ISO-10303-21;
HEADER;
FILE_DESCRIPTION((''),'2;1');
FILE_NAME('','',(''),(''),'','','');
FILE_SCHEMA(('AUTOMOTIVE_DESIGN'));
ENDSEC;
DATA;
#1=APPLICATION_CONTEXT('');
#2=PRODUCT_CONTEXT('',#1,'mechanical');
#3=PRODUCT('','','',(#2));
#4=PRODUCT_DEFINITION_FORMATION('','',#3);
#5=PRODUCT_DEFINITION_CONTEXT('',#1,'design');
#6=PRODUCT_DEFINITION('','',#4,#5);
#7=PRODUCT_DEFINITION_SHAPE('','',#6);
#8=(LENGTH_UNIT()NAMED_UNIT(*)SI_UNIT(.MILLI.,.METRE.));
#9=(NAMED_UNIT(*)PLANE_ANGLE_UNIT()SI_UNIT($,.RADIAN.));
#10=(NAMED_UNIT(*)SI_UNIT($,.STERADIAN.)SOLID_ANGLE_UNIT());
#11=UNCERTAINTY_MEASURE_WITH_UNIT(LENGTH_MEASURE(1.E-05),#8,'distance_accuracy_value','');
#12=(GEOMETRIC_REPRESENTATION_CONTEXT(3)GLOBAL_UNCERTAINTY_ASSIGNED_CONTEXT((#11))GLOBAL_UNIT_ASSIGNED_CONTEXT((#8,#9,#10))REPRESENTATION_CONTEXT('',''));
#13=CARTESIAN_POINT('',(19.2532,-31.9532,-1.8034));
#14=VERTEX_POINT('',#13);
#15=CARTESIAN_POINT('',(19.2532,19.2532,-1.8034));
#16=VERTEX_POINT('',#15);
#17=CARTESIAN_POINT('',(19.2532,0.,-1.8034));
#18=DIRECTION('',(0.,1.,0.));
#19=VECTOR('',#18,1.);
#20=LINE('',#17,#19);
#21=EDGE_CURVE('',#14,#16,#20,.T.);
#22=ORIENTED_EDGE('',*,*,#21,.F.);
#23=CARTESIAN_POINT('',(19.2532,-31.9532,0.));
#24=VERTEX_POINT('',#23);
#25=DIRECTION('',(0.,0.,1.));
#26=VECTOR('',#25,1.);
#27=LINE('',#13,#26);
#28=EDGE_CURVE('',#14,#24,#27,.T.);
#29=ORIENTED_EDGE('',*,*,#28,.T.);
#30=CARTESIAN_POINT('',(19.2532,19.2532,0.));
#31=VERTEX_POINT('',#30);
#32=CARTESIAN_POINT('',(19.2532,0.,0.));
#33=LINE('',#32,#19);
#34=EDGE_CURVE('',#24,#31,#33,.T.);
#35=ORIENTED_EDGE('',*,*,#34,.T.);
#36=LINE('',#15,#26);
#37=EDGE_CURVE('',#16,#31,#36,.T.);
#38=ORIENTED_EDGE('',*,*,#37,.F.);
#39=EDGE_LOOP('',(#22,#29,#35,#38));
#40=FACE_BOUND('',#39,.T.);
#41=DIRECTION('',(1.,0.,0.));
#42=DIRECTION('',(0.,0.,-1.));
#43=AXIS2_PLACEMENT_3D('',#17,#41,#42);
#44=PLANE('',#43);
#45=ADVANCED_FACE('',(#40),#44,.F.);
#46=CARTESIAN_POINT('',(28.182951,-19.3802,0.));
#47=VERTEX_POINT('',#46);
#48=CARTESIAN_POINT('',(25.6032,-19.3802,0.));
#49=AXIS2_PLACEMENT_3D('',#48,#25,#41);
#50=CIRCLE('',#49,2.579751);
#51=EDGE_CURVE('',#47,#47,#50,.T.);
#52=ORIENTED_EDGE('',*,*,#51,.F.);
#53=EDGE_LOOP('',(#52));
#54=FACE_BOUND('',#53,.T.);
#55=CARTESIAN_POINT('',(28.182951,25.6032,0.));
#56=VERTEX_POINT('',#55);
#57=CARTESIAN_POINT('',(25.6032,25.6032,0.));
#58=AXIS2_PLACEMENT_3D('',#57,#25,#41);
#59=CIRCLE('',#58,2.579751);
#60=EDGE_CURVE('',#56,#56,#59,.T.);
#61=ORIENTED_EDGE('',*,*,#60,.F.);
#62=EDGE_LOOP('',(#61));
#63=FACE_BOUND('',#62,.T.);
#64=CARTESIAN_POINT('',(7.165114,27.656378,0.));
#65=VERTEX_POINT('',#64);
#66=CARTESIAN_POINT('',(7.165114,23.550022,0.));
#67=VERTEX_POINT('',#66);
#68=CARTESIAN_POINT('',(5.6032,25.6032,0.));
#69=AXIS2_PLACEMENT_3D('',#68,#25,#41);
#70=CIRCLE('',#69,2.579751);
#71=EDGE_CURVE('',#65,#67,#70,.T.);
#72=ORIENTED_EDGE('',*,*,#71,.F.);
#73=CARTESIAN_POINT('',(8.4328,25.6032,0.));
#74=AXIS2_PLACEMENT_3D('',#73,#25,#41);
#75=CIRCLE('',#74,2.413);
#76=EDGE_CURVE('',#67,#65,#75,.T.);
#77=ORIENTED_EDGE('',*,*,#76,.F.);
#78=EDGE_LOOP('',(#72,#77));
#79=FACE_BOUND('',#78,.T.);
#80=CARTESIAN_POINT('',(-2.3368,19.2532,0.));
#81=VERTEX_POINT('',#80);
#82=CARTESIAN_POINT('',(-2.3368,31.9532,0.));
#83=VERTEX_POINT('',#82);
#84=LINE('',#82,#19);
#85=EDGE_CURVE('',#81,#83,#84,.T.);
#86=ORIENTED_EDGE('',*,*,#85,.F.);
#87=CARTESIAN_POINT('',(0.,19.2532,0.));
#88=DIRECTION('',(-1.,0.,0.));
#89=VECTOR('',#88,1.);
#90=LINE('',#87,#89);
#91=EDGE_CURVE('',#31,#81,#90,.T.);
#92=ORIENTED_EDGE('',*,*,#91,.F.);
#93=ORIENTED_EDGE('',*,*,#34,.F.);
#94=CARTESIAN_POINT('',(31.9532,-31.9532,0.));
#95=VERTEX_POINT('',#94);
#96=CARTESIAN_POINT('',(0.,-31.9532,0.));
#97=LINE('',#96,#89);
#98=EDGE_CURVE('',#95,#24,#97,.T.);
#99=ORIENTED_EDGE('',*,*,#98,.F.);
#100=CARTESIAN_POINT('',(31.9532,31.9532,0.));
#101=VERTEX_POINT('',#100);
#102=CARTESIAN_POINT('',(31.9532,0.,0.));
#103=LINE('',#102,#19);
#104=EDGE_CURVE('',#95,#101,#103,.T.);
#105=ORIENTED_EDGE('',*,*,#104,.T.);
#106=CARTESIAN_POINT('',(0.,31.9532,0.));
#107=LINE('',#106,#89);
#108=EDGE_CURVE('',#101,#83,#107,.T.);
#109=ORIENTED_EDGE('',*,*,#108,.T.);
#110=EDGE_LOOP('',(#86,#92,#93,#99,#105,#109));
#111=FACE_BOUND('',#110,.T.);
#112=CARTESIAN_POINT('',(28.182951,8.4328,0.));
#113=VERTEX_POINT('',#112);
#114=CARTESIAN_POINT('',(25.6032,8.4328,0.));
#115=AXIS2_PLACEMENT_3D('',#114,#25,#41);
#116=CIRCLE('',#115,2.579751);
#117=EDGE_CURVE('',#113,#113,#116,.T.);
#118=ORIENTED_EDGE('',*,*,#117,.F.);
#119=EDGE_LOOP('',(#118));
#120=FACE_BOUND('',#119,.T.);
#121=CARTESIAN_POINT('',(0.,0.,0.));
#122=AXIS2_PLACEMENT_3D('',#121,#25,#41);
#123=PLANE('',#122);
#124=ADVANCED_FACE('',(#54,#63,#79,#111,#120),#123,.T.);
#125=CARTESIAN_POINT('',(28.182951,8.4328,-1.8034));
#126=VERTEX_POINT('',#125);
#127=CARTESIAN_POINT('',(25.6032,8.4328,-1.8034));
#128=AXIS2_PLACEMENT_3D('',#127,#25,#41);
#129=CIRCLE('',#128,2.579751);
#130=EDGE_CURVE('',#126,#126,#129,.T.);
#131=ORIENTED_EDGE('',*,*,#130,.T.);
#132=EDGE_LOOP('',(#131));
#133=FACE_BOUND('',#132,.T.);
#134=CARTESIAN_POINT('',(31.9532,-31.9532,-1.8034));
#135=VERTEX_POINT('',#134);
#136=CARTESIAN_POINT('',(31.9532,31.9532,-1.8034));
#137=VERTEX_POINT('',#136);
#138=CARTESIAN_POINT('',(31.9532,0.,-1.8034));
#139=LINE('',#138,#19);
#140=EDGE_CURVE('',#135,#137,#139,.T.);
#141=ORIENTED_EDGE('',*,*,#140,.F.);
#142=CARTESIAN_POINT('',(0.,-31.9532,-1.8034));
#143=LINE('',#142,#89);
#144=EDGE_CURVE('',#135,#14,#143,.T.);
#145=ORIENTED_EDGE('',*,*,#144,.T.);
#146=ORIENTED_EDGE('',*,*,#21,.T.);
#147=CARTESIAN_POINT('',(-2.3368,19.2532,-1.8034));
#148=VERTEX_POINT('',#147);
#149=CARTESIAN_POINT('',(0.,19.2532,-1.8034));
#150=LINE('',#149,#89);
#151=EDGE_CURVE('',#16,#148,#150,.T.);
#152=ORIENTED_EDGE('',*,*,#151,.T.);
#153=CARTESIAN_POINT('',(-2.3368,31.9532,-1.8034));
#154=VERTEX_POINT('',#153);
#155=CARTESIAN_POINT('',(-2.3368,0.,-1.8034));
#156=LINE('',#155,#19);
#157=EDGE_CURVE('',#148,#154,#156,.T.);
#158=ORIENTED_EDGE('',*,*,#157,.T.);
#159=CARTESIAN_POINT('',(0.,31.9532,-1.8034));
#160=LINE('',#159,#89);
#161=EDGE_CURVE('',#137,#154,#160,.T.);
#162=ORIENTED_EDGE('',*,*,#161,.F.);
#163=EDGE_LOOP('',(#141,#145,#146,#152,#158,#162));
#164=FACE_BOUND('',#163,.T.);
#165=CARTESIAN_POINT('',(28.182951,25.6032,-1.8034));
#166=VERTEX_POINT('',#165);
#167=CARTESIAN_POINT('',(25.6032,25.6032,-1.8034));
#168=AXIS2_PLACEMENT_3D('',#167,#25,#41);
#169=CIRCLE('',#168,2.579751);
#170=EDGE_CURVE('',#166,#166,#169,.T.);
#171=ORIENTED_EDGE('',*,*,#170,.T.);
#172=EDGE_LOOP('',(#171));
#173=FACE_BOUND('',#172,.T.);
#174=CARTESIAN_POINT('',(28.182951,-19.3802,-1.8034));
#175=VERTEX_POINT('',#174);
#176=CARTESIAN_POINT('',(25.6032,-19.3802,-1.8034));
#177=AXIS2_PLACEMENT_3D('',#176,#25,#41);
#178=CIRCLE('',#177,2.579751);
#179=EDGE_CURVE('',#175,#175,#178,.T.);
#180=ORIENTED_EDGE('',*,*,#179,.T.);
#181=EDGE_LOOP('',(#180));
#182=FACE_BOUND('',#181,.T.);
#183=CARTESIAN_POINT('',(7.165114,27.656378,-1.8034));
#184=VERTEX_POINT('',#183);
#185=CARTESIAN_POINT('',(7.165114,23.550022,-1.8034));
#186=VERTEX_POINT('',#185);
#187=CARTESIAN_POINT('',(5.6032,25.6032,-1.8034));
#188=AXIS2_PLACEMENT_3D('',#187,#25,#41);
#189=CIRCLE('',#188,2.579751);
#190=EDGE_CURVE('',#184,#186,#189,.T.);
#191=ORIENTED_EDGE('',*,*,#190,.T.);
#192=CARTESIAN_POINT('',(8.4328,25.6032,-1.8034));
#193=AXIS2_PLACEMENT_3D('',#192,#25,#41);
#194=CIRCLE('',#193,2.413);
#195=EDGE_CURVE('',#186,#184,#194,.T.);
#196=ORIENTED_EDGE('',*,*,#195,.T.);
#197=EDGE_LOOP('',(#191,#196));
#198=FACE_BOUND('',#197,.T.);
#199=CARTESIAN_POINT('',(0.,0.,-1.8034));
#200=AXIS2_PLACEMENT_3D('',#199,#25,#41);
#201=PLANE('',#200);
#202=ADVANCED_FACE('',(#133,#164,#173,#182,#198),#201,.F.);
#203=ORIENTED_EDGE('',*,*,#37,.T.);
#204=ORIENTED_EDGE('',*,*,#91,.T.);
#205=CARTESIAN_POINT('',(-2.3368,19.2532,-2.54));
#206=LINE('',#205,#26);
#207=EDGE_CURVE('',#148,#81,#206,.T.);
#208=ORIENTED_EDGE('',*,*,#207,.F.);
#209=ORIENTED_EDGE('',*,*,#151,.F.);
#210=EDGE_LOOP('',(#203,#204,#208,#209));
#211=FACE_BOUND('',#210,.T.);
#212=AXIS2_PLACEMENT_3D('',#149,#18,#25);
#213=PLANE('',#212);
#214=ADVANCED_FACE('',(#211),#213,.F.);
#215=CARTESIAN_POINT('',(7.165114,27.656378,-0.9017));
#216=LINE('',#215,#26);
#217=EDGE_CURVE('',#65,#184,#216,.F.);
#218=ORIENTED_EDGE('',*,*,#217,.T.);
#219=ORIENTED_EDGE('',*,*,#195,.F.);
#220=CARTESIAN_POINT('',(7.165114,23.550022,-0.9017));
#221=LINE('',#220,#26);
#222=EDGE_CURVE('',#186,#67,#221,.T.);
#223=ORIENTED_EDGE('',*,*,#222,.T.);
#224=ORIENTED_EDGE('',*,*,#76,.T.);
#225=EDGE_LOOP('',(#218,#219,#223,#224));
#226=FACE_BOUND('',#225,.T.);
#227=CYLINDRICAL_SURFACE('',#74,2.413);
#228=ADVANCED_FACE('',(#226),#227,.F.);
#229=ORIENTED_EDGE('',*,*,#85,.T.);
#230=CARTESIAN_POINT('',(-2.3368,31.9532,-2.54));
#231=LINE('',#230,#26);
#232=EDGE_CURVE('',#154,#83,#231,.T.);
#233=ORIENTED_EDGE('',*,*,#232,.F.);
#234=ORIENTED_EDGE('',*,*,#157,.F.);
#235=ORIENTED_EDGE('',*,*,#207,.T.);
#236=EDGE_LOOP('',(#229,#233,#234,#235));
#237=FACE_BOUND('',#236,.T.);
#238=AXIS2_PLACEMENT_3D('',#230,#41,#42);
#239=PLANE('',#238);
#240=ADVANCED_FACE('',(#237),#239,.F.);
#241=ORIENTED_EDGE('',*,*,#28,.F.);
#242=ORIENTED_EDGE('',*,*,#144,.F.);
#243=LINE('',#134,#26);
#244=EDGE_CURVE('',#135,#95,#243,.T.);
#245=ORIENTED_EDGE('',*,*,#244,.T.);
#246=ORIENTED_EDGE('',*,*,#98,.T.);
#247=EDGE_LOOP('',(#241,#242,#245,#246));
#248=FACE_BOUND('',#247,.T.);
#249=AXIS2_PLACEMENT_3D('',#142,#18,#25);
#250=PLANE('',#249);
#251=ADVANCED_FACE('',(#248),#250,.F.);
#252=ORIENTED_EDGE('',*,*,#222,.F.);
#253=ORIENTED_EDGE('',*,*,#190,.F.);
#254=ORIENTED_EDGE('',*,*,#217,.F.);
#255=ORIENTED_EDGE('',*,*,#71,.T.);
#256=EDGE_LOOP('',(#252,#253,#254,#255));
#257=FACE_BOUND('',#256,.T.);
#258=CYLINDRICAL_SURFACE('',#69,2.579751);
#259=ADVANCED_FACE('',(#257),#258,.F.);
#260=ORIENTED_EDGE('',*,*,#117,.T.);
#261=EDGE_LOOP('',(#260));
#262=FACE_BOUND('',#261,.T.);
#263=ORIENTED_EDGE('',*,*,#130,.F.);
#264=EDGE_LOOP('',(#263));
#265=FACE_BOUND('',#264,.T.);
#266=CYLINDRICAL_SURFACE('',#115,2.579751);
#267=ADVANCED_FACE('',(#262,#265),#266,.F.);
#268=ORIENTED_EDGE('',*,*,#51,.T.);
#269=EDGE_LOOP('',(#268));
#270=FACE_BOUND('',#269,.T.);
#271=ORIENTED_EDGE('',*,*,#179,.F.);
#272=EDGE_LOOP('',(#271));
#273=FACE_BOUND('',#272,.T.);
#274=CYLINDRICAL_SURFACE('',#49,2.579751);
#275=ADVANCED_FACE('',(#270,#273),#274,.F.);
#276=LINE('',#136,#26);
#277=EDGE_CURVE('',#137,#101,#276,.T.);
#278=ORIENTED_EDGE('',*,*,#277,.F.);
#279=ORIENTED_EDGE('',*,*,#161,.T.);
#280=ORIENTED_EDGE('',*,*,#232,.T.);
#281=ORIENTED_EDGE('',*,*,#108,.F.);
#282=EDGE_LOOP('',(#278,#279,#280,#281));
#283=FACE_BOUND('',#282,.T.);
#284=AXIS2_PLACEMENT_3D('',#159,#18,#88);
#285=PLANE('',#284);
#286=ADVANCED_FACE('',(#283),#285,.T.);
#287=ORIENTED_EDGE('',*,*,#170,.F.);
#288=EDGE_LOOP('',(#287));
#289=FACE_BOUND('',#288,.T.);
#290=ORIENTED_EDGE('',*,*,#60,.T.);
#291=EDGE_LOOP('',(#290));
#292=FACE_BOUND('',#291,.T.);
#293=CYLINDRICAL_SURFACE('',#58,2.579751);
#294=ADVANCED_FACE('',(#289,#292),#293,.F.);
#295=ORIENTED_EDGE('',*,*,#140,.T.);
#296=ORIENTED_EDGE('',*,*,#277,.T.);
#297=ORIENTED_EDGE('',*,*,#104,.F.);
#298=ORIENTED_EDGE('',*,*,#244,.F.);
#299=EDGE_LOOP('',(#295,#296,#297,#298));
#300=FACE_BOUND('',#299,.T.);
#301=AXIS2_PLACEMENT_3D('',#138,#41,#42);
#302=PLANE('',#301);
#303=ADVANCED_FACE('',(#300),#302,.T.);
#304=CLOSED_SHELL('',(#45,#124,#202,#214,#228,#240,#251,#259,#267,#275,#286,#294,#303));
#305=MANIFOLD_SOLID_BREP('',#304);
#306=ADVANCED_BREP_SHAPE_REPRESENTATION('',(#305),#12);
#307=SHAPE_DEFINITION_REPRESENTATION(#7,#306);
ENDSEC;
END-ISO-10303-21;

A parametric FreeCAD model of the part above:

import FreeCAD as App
import Part
import Sketcher
from FreeCAD import Vector
Q = App.Units.Quantity

doc = App.newDocument("Part")
body = doc.addObject("PartDesign::Body", "Body")

# Sketch on XY plane
sketch1 = body.newObject("Sketcher::SketchObject", "Sketch")
sketch1.AttachmentSupport = (doc.getObject("XY_Plane"), [""])
sketch1.MapMode = "FlatFace"
sketch1.addGeometry(Part.LineSegment(Vector(19, 19, 0), Vector(19, -32, 0)), False)
sketch1.addGeometry(Part.LineSegment(Vector(19, -32, 0), Vector(32, -32, 0)), False)
sketch1.addGeometry(Part.LineSegment(Vector(32, -32, 0), Vector(32, 32, 0)), False)
sketch1.addGeometry(Part.LineSegment(Vector(32, 32, 0), Vector(-32, 32, 0)), False)
sketch1.addGeometry(Part.LineSegment(Vector(-32, 32, 0), Vector(-32, 19, 0)), False)
sketch1.addGeometry(Part.LineSegment(Vector(-32, 19, 0), Vector(19, 19, 0)), False)
sketch1.addConstraint(Sketcher.Constraint("Coincident", 0, 2, 1, 1))
sketch1.addConstraint(Sketcher.Constraint("Coincident", 1, 2, 2, 1))
sketch1.addConstraint(Sketcher.Constraint("Coincident", 2, 2, 3, 1))
sketch1.addConstraint(Sketcher.Constraint("Coincident", 3, 2, 4, 1))
sketch1.addConstraint(Sketcher.Constraint("Coincident", 4, 2, 5, 1))
sketch1.addConstraint(Sketcher.Constraint("Coincident", 5, 2, 0, 1))
sketch1.addConstraint(Sketcher.Constraint("Vertical", 0))
sketch1.addConstraint(Sketcher.Constraint("Horizontal", 1))
sketch1.addConstraint(Sketcher.Constraint("Vertical", 2))
sketch1.addConstraint(Sketcher.Constraint("Horizontal", 3))
sketch1.addConstraint(Sketcher.Constraint("Vertical", 4))
sketch1.addConstraint(Sketcher.Constraint("Horizontal", 5))
sketch1.addConstraint(Sketcher.Constraint("Symmetric", 1, 2, 3, 2, -1, 1))
sketch1.addConstraint(Sketcher.Constraint("Equal", 5, 0))
sketch1.addConstraint(Sketcher.Constraint("Equal", 3, 2))
sketch1.addConstraint(Sketcher.Constraint("DistanceX", 1, 1, 1, 2, Q("0.5 in")))
sketch1.addConstraint(Sketcher.Constraint("DistanceX", 3, 2, 3, 1, Q("2.516 in")))
pad1 = body.newObject("PartDesign::Pad", "Pad")
pad1.Profile = sketch1
pad1.Length = Q("0.071 in")
pad1.Reversed = True

# Sketch on XY plane
sketch2 = body.newObject("Sketcher::SketchObject", "Sketch001")
sketch2.AttachmentSupport = (doc.getObject("XY_Plane"), [""])
sketch2.MapMode = "FlatFace"
sketch2.addGeometry(Part.Circle(Vector(-19.4, 25.6, 0), Vector(0, 0, 1), 2.4), False)
sketch2.addGeometry(Part.Circle(Vector(8.4, 25.6, 0), Vector(0, 0, 1), 2.4), False)
sketch2.addGeometry(Part.Circle(Vector(25.6, -19.4, 0), Vector(0, 0, 1), 2.4), False)
sketch2.addGeometry(Part.Circle(Vector(25.6, 8.4, 0), Vector(0, 0, 1), 2.4), False)
sketch2.addConstraint(Sketcher.Constraint("Equal", 0, 1))
sketch2.addConstraint(Sketcher.Constraint("Equal", 1, 2))
sketch2.addConstraint(Sketcher.Constraint("Equal", 2, 3))
sketch2.addConstraint(Sketcher.Constraint("Horizontal", 0, 3, 1, 3))
sketch2.addConstraint(Sketcher.Constraint("Vertical", 2, 3, 3, 3))
sketch2.addConstraint(Sketcher.Constraint("Diameter", 0, Q("0.19 in")))
sketch2.addConstraint(Sketcher.Constraint("DistanceX", 0, 3, -1, 1, Q("0.763 in")))
sketch2.addConstraint(Sketcher.Constraint("DistanceY", -1, 1, 0, 3, Q("1.008 in")))
sketch2.addConstraint(Sketcher.Constraint("DistanceX", -1, 1, 1, 3, Q("0.332 in")))
sketch2.addConstraint(Sketcher.Constraint("DistanceX", -1, 1, 2, 3, Q("1.008 in")))
sketch2.addConstraint(Sketcher.Constraint("DistanceY", 2, 3, -1, 1, Q("0.763 in")))
sketch2.addConstraint(Sketcher.Constraint("DistanceY", -1, 1, 3, 3, Q("0.332 in")))
doc.recompute()
hole = body.newObject("PartDesign::Hole", "Hole")
hole.Profile = sketch2
hole.ThreadType = "None"
hole.Diameter = Q("0.19 in")
hole.DepthType = "ThroughAll"

# Sketch on XY plane
sketch3 = body.newObject("Sketcher::SketchObject", "Sketch002")
sketch3.AttachmentSupport = (doc.getObject("XY_Plane"), [""])
sketch3.MapMode = "FlatFace"
sketch3.addGeometry(Part.Circle(Vector(5.6, 25.6, 0), Vector(0, 0, 1), 2.6), False)
sketch3.addGeometry(Part.Circle(Vector(25.6, 8.4, 0), Vector(0, 0, 1), 2.6), False)
sketch3.addGeometry(Part.Circle(Vector(25.6, -19.4, 0), Vector(0, 0, 1), 2.6), False)
sketch3.addGeometry(Part.Circle(Vector(25.6, 25.6, 0), Vector(0, 0, 1), 2.6), False)
sketch3.addConstraint(Sketcher.Constraint("Equal", 0, 1))
sketch3.addConstraint(Sketcher.Constraint("Equal", 1, 2))
sketch3.addConstraint(Sketcher.Constraint("Equal", 2, 3))
sketch3.addConstraint(Sketcher.Constraint("Horizontal", 0, 3, 3, 3))
sketch3.addConstraint(Sketcher.Constraint("Vertical", 1, 3, 2, 3))
sketch3.addConstraint(Sketcher.Constraint("Vertical", 2, 3, 3, 3))
sketch3.addConstraint(Sketcher.Constraint("Diameter", 0, 5.159502))
sketch3.addConstraint(Sketcher.Constraint("DistanceY", -1, 1, 0, 3, Q("1.008 in")))
sketch3.addConstraint(Sketcher.Constraint("DistanceX", -1, 1, 1, 3, Q("1.008 in")))
sketch3.addConstraint(Sketcher.Constraint("DistanceY", -1, 1, 1, 3, Q("0.332 in")))
sketch3.addConstraint(Sketcher.Constraint("DistanceY", 2, 3, -1, 1, Q("0.763 in")))
sketch3.addConstraint(Sketcher.Constraint("DistanceX", -1, 1, 0, 3, 5.6032))
doc.recompute()
hole2 = body.newObject("PartDesign::Hole", "Hole001")
hole2.Profile = sketch3
hole2.ThreadType = "None"
hole2.Diameter = 5.159502
hole2.DepthType = "ThroughAll"

# Sketch on XY plane
sketch4 = body.newObject("Sketcher::SketchObject", "Sketch003")
sketch4.AttachmentSupport = (doc.getObject("XY_Plane"), [""])
sketch4.MapMode = "FlatFace"
sketch4.addGeometry(Part.LineSegment(Vector(-32, 32, 0), Vector(-32, 19, 0)), False)
sketch4.addGeometry(Part.LineSegment(Vector(-32, 19, 0), Vector(-2, 19, 0)), False)
sketch4.addGeometry(Part.LineSegment(Vector(-2, 19, 0), Vector(-2, 32, 0)), False)
sketch4.addGeometry(Part.LineSegment(Vector(-2, 32, 0), Vector(-32, 32, 0)), False)
sketch4.addConstraint(Sketcher.Constraint("Coincident", 0, 2, 1, 1))
sketch4.addConstraint(Sketcher.Constraint("Coincident", 1, 2, 2, 1))
sketch4.addConstraint(Sketcher.Constraint("Coincident", 2, 2, 3, 1))
sketch4.addConstraint(Sketcher.Constraint("Coincident", 3, 2, 0, 1))
sketch4.addConstraint(Sketcher.Constraint("Vertical", 0))
sketch4.addConstraint(Sketcher.Constraint("Horizontal", 1))
sketch4.addConstraint(Sketcher.Constraint("Vertical", 2))
sketch4.addConstraint(Sketcher.Constraint("Horizontal", 3))
sketch4.addConstraint(Sketcher.Constraint("DistanceY", 0, 2, 0, 1, Q("0.5 in")))
sketch4.addConstraint(Sketcher.Constraint("DistanceX", 1, 1, 1, 2, Q("1.166 in")))
sketch4.addConstraint(Sketcher.Constraint("DistanceX", 0, 2, -1, 1, Q("1.258 in")))
sketch4.addConstraint(Sketcher.Constraint("DistanceY", -1, 1, 0, 2, Q("0.758 in")))
pocket1 = body.newObject("PartDesign::Pocket", "Pocket")
pocket1.Profile = sketch4
pocket1.Length = Q("0.1 in")

doc.recompute()
